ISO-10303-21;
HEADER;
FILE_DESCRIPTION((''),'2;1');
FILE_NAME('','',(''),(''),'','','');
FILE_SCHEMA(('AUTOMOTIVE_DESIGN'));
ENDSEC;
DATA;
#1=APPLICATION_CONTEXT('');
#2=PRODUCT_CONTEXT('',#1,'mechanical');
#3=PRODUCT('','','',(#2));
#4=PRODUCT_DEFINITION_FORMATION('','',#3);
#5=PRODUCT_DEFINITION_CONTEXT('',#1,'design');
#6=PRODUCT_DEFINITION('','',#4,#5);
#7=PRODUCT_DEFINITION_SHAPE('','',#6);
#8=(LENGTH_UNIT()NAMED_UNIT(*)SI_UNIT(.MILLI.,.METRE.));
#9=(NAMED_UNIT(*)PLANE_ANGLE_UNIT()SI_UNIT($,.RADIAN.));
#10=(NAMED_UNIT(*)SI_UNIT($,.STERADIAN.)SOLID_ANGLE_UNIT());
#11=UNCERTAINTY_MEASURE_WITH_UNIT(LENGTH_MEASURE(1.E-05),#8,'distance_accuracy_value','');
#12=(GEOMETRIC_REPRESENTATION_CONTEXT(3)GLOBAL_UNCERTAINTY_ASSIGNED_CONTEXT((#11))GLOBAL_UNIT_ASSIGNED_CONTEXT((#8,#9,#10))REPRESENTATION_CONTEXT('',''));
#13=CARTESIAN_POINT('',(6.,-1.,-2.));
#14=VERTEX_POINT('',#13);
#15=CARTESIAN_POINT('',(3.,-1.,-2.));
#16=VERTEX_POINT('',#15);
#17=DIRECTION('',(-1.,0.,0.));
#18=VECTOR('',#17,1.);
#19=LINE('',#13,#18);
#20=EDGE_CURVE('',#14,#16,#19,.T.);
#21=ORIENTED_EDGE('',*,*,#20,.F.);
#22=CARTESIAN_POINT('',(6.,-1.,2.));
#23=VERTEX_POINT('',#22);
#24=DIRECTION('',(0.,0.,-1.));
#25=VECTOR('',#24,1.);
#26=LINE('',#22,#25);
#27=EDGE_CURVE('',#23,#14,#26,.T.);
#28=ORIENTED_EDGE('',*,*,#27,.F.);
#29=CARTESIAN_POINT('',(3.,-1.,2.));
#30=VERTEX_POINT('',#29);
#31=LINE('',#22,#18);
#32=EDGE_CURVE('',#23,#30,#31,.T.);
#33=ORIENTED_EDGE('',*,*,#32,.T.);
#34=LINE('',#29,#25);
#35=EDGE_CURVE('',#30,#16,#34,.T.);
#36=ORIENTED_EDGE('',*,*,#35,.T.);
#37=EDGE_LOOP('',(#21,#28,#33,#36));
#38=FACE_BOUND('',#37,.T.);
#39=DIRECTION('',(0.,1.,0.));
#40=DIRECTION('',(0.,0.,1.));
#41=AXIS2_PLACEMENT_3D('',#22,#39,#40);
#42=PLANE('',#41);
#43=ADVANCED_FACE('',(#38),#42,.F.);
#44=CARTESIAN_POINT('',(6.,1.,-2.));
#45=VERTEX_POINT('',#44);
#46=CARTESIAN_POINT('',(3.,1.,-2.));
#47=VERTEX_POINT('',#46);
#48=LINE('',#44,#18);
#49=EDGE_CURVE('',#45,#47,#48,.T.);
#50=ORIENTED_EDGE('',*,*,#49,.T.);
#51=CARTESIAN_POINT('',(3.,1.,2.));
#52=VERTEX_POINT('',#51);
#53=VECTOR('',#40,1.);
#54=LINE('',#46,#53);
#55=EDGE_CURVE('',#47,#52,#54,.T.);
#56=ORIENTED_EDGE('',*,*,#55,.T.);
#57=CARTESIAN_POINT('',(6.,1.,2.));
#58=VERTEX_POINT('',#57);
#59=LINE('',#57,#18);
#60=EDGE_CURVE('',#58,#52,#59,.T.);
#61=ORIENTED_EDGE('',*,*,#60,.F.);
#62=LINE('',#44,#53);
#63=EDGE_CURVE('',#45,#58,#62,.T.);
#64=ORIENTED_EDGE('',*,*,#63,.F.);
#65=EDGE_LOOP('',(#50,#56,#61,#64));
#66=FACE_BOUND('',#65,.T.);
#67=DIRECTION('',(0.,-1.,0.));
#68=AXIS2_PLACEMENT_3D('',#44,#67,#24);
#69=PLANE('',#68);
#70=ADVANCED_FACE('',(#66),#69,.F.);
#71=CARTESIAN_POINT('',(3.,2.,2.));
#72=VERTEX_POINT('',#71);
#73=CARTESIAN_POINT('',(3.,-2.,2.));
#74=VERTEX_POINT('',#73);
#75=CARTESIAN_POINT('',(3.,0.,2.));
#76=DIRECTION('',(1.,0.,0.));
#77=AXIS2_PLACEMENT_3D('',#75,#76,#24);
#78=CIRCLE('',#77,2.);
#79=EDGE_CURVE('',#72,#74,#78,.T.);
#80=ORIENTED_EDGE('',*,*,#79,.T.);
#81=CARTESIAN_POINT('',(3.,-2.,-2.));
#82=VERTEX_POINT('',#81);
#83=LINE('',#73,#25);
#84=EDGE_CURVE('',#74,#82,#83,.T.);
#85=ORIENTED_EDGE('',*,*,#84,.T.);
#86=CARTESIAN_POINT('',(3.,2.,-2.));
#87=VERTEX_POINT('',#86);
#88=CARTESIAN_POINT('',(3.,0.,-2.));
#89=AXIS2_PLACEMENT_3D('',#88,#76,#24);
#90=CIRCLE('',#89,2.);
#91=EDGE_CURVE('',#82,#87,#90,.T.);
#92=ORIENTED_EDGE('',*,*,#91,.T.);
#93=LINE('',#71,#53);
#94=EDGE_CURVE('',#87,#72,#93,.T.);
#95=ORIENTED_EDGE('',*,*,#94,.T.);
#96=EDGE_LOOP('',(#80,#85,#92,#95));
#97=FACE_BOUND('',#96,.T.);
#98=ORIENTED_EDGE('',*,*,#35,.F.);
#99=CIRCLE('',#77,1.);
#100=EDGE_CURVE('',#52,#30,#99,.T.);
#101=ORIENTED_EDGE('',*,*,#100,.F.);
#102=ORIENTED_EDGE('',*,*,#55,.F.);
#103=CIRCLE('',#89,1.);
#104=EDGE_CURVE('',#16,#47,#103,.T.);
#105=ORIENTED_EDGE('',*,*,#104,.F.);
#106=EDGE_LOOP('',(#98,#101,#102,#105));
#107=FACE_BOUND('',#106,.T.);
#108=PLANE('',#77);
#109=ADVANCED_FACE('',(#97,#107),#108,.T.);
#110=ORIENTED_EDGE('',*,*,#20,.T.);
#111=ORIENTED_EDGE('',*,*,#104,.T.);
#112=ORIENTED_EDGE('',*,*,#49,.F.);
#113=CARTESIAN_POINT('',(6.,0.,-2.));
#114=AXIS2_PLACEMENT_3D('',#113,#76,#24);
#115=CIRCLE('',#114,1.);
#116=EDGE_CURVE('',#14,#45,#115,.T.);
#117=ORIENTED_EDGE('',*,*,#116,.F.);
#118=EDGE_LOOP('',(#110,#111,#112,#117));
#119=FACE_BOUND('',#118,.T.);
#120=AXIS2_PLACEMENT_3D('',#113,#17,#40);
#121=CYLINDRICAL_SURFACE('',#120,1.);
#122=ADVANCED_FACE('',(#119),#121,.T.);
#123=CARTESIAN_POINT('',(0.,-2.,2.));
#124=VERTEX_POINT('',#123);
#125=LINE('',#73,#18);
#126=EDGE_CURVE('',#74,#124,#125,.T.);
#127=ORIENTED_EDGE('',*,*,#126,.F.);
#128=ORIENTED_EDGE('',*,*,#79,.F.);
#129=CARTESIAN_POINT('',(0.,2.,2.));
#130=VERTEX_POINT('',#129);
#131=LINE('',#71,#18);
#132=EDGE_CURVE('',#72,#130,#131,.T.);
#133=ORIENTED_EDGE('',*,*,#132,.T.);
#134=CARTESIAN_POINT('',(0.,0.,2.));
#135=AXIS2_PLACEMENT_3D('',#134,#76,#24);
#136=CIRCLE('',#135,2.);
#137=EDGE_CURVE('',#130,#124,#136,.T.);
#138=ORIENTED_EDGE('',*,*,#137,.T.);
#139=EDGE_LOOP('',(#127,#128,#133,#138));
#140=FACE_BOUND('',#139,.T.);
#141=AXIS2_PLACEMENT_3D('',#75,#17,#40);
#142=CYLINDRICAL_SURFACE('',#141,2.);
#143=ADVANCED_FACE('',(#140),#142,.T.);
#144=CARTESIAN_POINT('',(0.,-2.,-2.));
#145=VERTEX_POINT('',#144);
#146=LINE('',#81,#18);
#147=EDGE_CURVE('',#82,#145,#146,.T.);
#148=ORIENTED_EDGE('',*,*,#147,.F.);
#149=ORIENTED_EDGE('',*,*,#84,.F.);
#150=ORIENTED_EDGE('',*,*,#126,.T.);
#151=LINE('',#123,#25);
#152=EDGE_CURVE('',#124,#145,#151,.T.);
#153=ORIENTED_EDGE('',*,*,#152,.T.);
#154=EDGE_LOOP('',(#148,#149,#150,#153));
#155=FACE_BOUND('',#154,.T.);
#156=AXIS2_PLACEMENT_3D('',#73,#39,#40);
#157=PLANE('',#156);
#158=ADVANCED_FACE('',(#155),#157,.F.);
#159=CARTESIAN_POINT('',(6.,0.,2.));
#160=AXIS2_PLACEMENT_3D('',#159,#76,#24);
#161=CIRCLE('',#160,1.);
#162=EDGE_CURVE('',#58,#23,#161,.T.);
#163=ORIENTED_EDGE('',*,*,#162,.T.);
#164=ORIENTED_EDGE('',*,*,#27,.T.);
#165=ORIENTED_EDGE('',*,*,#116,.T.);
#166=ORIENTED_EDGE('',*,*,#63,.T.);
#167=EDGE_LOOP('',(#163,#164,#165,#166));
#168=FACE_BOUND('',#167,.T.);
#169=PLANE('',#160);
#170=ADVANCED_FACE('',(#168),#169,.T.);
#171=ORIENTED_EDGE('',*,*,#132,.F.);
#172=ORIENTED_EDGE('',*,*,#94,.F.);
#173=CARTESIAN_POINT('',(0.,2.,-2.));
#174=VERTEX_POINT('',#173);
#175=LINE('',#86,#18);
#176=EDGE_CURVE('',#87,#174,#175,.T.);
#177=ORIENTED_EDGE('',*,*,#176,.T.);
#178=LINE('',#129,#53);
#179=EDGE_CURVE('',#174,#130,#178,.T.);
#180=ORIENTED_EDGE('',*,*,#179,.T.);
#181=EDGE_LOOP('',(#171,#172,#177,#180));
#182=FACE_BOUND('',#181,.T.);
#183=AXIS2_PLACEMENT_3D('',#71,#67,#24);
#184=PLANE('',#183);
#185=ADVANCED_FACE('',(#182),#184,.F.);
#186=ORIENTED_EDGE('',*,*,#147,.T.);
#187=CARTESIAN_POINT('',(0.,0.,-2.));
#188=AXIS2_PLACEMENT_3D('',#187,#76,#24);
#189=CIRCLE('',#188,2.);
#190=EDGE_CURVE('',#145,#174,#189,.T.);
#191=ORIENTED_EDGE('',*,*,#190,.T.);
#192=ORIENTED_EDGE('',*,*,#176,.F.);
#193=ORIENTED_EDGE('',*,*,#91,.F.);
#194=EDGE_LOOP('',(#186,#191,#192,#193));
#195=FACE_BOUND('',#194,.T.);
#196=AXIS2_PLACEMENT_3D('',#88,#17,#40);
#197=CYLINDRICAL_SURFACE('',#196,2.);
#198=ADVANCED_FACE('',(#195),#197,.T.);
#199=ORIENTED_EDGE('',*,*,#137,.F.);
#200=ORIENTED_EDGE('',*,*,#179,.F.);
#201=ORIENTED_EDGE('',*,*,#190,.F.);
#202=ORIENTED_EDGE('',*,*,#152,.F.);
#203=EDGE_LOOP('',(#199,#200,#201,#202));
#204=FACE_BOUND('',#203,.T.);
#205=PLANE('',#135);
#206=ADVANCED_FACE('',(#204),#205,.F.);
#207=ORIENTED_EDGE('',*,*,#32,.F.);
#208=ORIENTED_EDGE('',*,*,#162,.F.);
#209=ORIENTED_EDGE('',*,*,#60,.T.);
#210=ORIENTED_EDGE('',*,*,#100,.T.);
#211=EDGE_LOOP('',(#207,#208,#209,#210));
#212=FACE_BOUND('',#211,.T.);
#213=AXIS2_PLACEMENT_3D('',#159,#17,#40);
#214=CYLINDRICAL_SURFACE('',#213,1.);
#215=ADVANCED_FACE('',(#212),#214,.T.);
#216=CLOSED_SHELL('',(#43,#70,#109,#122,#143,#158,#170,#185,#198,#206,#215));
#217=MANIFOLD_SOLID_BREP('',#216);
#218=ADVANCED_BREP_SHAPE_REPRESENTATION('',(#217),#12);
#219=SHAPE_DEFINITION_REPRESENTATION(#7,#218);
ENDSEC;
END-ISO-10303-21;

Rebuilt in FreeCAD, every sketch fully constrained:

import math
import FreeCAD as App
import Part
import Sketcher
from FreeCAD import Vector

doc = App.newDocument("Part")
params = doc.addObject("Spreadsheet::Sheet", "Params")
for row, (alias, value) in enumerate([
    ("sketch1_radius", "2 mm"),
    ("sketch1_height", "4 mm"),
    ("pad1_length", "3 mm"),
    ("sketch2_radius", "1 mm"),
    ("sketch2_height", "4 mm"),
    ("pad2_length", "3 mm"),
], start=1):
    params.set(f"A{row}", alias)
    params.set(f"B{row}", "=" + value)
    params.setAlias(f"B{row}", alias)

body = doc.addObject("PartDesign::Body", "Body")

# Sketch on YZ plane
sketch1 = body.newObject("Sketcher::SketchObject", "Sketch")
sketch1.AttachmentSupport = (doc.getObject("YZ_Plane"), [""])
sketch1.MapMode = "FlatFace"
sketch1.addGeometry(Part.LineSegment(Vector(2, -2, 0), Vector(2, 2, 0)), False)
sketch1.addGeometry(Part.ArcOfCircle(Part.Circle(Vector(0, 2, 0), Vector(0, 0, 1), 2), math.radians(0), math.radians(180)), False)
sketch1.addGeometry(Part.LineSegment(Vector(-2, 2, 0), Vector(-2, -2, 0)), False)
sketch1.addGeometry(Part.ArcOfCircle(Part.Circle(Vector(0, -2, 0), Vector(0, 0, 1), 2), math.radians(180), math.radians(360)), False)
sketch1.addConstraint(Sketcher.Constraint("Tangent", 0, 2, 1, 1))
sketch1.addConstraint(Sketcher.Constraint("Tangent", 1, 2, 2, 1))
sketch1.addConstraint(Sketcher.Constraint("Tangent", 2, 2, 3, 1))
sketch1.addConstraint(Sketcher.Constraint("Tangent", 3, 2, 0, 1))
sketch1.addConstraint(Sketcher.Constraint("Vertical", 0))
sketch1.addConstraint(Sketcher.Constraint("Vertical", 2))
sketch1.addConstraint(Sketcher.Constraint("Symmetric", 1, 3, 3, 3, -1, 1))
sketch1.addConstraint(Sketcher.Constraint("Radius", 1, 2.0))
sketch1.addConstraint(Sketcher.Constraint("DistanceY", 0, 1, 0, 2, 4.0))
sketch1.setExpression("Constraints[7]", "Params.sketch1_radius")
sketch1.setExpression("Constraints[8]", "Params.sketch1_height")
pad1 = body.newObject("PartDesign::Pad", "Pad")
pad1.Profile = sketch1
pad1.setExpression("Length", "Params.pad1_length")

# Sketch on YZ plane
sketch2 = body.newObject("Sketcher::SketchObject", "Sketch001")
sketch2.AttachmentSupport = (doc.getObject("YZ_Plane"), [""])
sketch2.MapMode = "FlatFace"
sketch2.AttachmentOffset = App.Placement(Vector(0, 0, 3), App.Rotation())
sketch2.addGeometry(Part.LineSegment(Vector(-1, 2, 0), Vector(-1, -2, 0)), False)
sketch2.addGeometry(Part.ArcOfCircle(Part.Circle(Vector(0, -2, 0), Vector(0, 0, 1), 1), math.radians(180), math.radians(360)), False)
sketch2.addGeometry(Part.LineSegment(Vector(1, -2, 0), Vector(1, 2, 0)), False)
sketch2.addGeometry(Part.ArcOfCircle(Part.Circle(Vector(0, 2, 0), Vector(0, 0, 1), 1), math.radians(0), math.radians(180)), False)
sketch2.addConstraint(Sketcher.Constraint("Tangent", 0, 2, 1, 1))
sketch2.addConstraint(Sketcher.Constraint("Tangent", 1, 2, 2, 1))
sketch2.addConstraint(Sketcher.Constraint("Tangent", 2, 2, 3, 1))
sketch2.addConstraint(Sketcher.Constraint("Tangent", 3, 2, 0, 1))
sketch2.addConstraint(Sketcher.Constraint("Vertical", 0))
sketch2.addConstraint(Sketcher.Constraint("Vertical", 2))
sketch2.addConstraint(Sketcher.Constraint("Symmetric", 1, 3, 3, 3, -1, 1))
sketch2.addConstraint(Sketcher.Constraint("Radius", 1, 1.0))
sketch2.addConstraint(Sketcher.Constraint("DistanceY", 0, 2, 0, 1, 4.0))
sketch2.setExpression("Constraints[7]", "Params.sketch2_radius")
sketch2.setExpression("Constraints[8]", "Params.sketch2_height")
pad2 = body.newObject("PartDesign::Pad", "Pad001")
pad2.Profile = sketch2
pad2.setExpression("Length", "Params.pad2_length")

doc.recompute()
